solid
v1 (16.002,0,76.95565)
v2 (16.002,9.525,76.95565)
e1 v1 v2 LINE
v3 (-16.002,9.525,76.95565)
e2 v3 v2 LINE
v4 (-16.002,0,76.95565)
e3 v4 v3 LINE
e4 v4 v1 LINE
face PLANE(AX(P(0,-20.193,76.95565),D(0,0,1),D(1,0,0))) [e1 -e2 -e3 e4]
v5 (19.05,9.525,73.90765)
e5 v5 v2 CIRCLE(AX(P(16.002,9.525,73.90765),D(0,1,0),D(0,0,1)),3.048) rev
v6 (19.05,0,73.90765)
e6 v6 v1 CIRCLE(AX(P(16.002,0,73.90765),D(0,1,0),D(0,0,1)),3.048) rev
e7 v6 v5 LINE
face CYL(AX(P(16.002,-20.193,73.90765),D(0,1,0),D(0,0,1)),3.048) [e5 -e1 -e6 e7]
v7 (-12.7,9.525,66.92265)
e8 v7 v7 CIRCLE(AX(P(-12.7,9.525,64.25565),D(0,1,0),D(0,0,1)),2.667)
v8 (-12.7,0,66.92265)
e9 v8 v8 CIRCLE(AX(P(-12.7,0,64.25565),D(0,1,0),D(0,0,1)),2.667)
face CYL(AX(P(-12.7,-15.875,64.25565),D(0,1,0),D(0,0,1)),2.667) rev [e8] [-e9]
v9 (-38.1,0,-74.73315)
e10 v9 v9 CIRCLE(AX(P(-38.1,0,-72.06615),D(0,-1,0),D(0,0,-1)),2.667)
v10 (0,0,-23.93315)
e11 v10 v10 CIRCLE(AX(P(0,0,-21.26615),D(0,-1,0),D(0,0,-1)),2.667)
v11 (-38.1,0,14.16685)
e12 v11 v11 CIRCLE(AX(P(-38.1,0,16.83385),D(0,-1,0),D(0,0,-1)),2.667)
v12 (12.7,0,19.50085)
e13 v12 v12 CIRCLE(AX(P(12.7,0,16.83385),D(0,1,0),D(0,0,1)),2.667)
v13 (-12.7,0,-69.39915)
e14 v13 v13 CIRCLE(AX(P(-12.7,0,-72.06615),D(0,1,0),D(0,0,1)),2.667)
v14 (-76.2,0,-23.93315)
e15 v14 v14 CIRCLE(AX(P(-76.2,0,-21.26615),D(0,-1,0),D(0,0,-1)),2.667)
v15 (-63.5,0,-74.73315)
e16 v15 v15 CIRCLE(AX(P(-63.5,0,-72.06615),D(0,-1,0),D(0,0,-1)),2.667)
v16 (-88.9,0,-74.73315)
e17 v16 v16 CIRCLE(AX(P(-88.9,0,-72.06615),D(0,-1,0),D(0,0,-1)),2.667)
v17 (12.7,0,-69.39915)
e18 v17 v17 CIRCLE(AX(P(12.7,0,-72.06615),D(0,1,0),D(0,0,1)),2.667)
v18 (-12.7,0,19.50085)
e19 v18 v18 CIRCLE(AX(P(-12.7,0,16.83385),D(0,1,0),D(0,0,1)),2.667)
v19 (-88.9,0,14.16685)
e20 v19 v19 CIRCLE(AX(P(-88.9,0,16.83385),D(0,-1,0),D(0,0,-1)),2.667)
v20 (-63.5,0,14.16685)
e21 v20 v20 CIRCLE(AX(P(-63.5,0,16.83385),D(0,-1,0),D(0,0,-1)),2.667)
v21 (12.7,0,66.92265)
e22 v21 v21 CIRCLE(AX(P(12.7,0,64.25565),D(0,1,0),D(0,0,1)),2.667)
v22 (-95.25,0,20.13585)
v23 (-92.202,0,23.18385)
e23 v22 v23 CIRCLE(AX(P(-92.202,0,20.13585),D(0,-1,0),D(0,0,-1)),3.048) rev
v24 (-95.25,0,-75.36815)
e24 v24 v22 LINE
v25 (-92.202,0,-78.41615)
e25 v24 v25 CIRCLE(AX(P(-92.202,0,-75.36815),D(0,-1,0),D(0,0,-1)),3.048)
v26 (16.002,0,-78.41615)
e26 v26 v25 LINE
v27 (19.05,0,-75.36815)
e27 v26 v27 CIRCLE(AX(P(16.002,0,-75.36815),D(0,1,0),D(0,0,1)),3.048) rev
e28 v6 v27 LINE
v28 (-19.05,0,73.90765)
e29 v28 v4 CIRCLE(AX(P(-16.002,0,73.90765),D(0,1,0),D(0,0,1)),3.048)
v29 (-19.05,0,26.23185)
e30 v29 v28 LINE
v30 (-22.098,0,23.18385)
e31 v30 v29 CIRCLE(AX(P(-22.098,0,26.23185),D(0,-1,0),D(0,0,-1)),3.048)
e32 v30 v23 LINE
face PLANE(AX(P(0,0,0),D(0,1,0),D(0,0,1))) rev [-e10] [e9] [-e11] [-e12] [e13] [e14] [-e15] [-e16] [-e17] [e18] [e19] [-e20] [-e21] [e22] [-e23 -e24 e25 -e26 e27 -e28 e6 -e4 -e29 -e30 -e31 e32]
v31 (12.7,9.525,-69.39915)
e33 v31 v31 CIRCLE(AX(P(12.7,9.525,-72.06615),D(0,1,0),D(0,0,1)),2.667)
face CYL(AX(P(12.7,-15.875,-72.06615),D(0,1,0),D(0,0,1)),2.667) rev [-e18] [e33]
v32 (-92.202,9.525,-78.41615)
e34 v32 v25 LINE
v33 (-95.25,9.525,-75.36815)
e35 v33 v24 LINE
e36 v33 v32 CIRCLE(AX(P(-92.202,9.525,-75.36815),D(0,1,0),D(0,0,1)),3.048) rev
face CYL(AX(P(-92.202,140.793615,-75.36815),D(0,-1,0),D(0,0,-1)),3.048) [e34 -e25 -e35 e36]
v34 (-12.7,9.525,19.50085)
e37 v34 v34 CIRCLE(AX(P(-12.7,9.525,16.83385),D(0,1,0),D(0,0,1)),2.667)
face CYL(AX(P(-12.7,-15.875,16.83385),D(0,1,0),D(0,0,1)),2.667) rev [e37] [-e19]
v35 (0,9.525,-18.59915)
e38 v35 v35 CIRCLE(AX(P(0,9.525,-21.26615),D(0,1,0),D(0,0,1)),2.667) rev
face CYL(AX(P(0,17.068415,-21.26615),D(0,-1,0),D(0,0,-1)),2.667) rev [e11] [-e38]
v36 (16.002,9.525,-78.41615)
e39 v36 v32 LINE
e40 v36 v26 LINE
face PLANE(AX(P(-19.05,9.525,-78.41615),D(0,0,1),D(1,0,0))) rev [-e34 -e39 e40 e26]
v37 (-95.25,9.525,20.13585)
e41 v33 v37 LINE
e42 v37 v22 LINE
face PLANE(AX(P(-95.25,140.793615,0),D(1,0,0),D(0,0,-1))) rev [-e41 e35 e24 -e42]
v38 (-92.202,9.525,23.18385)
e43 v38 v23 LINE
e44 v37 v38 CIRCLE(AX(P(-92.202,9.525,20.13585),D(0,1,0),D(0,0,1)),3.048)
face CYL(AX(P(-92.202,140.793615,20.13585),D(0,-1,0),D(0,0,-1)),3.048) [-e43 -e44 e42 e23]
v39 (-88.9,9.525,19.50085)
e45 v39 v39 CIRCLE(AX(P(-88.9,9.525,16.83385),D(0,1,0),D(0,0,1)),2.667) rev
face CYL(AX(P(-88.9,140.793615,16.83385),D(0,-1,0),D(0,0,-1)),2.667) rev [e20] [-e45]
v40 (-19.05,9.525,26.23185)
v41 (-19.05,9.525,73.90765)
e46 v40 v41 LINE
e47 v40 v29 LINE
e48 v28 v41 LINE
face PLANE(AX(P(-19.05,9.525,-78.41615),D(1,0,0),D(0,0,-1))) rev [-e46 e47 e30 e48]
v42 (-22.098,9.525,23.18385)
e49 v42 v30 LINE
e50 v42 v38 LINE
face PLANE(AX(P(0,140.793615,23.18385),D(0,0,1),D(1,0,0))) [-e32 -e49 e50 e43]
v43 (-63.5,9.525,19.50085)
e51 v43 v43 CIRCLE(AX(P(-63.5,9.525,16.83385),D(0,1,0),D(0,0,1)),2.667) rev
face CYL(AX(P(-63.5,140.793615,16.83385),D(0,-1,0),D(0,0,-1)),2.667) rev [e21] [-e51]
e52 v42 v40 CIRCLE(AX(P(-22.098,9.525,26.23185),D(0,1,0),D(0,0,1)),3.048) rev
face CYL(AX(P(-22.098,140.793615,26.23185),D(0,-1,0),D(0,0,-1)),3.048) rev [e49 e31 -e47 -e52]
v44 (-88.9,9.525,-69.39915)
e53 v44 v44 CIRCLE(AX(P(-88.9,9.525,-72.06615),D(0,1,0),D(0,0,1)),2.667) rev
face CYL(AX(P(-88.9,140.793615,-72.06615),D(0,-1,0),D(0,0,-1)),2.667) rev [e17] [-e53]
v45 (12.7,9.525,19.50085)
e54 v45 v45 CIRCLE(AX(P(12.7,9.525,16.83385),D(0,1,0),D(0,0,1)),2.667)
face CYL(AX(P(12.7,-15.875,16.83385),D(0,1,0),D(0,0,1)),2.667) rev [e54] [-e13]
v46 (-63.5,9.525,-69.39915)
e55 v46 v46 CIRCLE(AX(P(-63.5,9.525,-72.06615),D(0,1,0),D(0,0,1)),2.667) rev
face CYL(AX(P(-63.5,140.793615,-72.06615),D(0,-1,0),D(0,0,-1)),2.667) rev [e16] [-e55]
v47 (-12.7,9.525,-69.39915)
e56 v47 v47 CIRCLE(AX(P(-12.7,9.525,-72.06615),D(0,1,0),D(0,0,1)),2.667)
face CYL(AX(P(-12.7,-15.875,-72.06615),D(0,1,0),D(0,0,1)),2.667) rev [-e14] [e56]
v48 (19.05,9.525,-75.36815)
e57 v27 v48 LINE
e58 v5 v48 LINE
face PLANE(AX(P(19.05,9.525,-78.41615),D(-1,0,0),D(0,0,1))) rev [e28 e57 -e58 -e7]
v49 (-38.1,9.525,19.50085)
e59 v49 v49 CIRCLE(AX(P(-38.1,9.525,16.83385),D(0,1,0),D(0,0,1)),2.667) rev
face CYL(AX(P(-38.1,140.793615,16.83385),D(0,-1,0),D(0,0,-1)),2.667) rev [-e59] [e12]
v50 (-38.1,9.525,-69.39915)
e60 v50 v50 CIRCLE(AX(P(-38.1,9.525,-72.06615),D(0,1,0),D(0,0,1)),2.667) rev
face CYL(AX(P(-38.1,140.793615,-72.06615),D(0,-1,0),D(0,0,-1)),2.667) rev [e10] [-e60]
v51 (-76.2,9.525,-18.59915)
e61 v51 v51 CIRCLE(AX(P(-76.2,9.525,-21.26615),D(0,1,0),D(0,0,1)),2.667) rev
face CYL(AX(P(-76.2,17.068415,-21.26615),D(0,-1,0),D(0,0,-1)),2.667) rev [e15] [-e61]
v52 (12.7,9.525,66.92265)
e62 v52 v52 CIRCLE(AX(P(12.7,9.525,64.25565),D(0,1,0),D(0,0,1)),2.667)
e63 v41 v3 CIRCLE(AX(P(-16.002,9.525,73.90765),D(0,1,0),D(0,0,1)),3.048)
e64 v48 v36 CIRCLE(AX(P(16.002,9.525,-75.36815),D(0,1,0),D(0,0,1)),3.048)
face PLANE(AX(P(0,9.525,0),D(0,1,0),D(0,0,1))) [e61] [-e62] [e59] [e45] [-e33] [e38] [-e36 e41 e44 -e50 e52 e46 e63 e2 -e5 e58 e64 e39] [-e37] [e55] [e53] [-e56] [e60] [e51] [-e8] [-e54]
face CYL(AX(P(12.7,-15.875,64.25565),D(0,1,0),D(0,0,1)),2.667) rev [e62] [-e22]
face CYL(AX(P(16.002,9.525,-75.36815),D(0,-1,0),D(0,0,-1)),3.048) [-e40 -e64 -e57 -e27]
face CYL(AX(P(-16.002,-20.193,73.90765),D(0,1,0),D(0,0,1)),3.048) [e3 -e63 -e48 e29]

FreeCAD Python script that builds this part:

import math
import FreeCAD as App
import Part
import Sketcher
from FreeCAD import Vector
Q = App.Units.Quantity


def edges_at(feature, points):
    """Names of the edges that pass closest to the given points."""
    edges = feature.Shape.Edges
    near = lambda p: min(range(len(edges)), key=lambda i: edges[i].distToShape(Part.Vertex(*p))[0])
    return sorted({f"Edge{near(p) + 1}" for p in points})


def add_polygon(sketch, points):
    """Adds a closed chain of lines whose ends are joined by coincident constraints."""
    first, n = sketch.GeometryCount, len(points)
    for a, b in zip(points, points[1:] + points[:1]):
        sketch.addGeometry(Part.LineSegment(App.Vector(*a, 0), App.Vector(*b, 0)), False)
    for i in range(n):
        sketch.addConstraint(Sketcher.Constraint("Coincident", first + i, 2, first + (i + 1) % n, 1))

doc = App.newDocument("Part")
body = doc.addObject("PartDesign::Body", "Body")

# Sketch on XZ plane
sketch1 = doc.addObject("Sketcher::SketchObject", "Sketch")
body.addObject(sketch1)
sketch1.AttachmentSupport = (doc.XZ_Plane, [""])
sketch1.MapMode = "FlatFace"
add_polygon(sketch1, [(-19, -78), (-19, 78), (19, 78), (19, -78)])  # lines 0-3
sketch1.addConstraint([
    Sketcher.Constraint("Vertical", 0),
    Sketcher.Constraint("Horizontal", 1),
    Sketcher.Constraint("Vertical", 2),
    Sketcher.Constraint("Horizontal", 3),
    Sketcher.Constraint("Symmetric", 0, 2, 2, 2, -1, 1),
    Sketcher.Constraint("DistanceX", 1, 1, 1, 2, Q("1.5 in")),
    Sketcher.Constraint("DistanceY", 0, 1, 0, 2, Q("6.1745 in")),
])
pad1 = doc.addObject("PartDesign::Pad", "Pad")
body.addObject(pad1)
pad1.Profile = sketch1
pad1.Length = Q("0.375 in")
pad1.Reversed = True
doc.recompute()

fillet = doc.addObject("PartDesign::Fillet", "Fillet")
body.addObject(fillet)
fillet.Base = (pad1, edges_at(pad1, [(19.05, 4.763, 78.416), (-19.05, 4.763, 78.416)]))
fillet.Radius = Q("0.12 in")
doc.recompute()

fillet2 = doc.addObject("PartDesign::Fillet", "Fillet001")
body.addObject(fillet2)
fillet2.Base = (fillet, edges_at(fillet, [(-19.05, 4.763, -78.416)]))
fillet2.Radius = Q("0.12 in")
doc.recompute()

fillet3 = doc.addObject("PartDesign::Fillet", "Fillet002")
body.addObject(fillet3)
fillet3.Base = (fillet2, edges_at(fillet2, [(19.05, 4.763, -78.416)]))
fillet3.Radius = Q("0.12 in")

# Sketch on XZ plane
sketch2 = doc.addObject("Sketcher::SketchObject", "Sketch001")
body.addObject(sketch2)
sketch2.AttachmentSupport = (doc.XZ_Plane, [""])
sketch2.MapMode = "FlatFace"
sketch2.AttachmentOffset = App.Placement(Vector(0, 0, -0.375 * 25.4), App.Rotation())
sketch2.addGeometry([
    Part.Circle(Vector(12.7, -72.1, 0), Vector(0, 0, 1), 2.7),  # 0
    Part.Circle(Vector(12.7, 16.8, 0), Vector(0, 0, 1), 2.7),  # 1
    Part.Circle(Vector(-12.7, 16.8, 0), Vector(0, 0, 1), 2.7),  # 2
    Part.Circle(Vector(-12.7, -72.1, 0), Vector(0, 0, 1), 2.7),  # 3
    Part.Circle(Vector(-12.7, 64.3, 0), Vector(0, 0, 1), 2.7),  # 4
    Part.Circle(Vector(12.7, 64.3, 0), Vector(0, 0, 1), 2.7),  # 5
], False)
sketch2.addConstraint([
    Sketcher.Constraint("Equal", 0, 1),
    Sketcher.Constraint("Equal", 1, 2),
    Sketcher.Constraint("Equal", 2, 3),
    Sketcher.Constraint("Equal", 3, 4),
    Sketcher.Constraint("Equal", 4, 5),
    Sketcher.Constraint("Symmetric", 1, 3, 2, 3, -2),
    Sketcher.Constraint("Symmetric", 0, 3, 3, 3, -2),
    Sketcher.Constraint("Symmetric", 4, 3, 5, 3, -2),
    Sketcher.Constraint("Vertical", 0, 3, 1, 3),
    Sketcher.Constraint("Vertical", 3, 3, 4, 3),
    Sketcher.Constraint("Diameter", 0, Q("0.21 in")),
    Sketcher.Constraint("DistanceX", 2, 3, 1, 3, Q("1 in")),
    Sketcher.Constraint("DistanceY", 0, 3, 1, 3, Q("3.5 in")),
    Sketcher.Constraint("DistanceY", 2, 3, 4, 3, Q("1.867 in")),
    Sketcher.Constraint("DistanceY", 0, 3, -1, 1, Q("72.06615 mm")),
])
pocket1 = doc.addObject("PartDesign::Pocket", "Pocket")
body.addObject(pocket1)
pocket1.Profile = sketch2
pocket1.Length = Q("1 in")
pocket1.Reversed = True

# Sketch on XZ plane
sketch3 = doc.addObject("Sketcher::SketchObject", "Sketch002")
body.addObject(sketch3)
sketch3.AttachmentSupport = (doc.XZ_Plane, [""])
sketch3.MapMode = "FlatFace"
sketch3.AttachmentOffset = App.Placement(Vector(0, 0, -0.375 * 25.4), App.Rotation())
sketch3.addGeometry([
    Part.ArcOfCircle(Part.Circle(Vector(-16, 73.9, 0), Vector(0, 0, 1), 3), math.radians(90), math.radians(180)),  # 0
    Part.LineSegment(Vector(-19.1, 73.9, 0), Vector(-19.1, 75.4, 0)),  # 1
    Part.ArcOfCircle(Part.Circle(Vector(-16, 75.4, 0), Vector(0, 0, 1), 3), math.radians(149), math.radians(180)),  # 2
    Part.ArcOfCircle(Part.Circle(Vector(-16, 75.4, 0), Vector(0, 0, 1), 3), math.radians(90), math.radians(149)),  # 3
    Part.LineSegment(Vector(-16, 78.4, 0), Vector(16, 78.4, 0)),  # 4
    Part.ArcOfCircle(Part.Circle(Vector(16, 75.4, 0), Vector(0, 0, 1), 3), math.radians(31), math.radians(90)),  # 5
    Part.ArcOfCircle(Part.Circle(Vector(16, 75.4, 0), Vector(0, 0, 1), 3), math.radians(0), math.radians(31)),  # 6
    Part.LineSegment(Vector(19.1, 75.4, 0), Vector(19.1, 73.9, 0)),  # 7
    Part.ArcOfCircle(Part.Circle(Vector(16, 73.9, 0), Vector(0, 0, 1), 3), math.radians(0), math.radians(90)),  # 8
    Part.LineSegment(Vector(16, 77, 0), Vector(-16, 77, 0)),  # 9
], False)
sketch3.addConstraint([
    Sketcher.Constraint("Tangent", 0, 2, 1, 1),
    Sketcher.Constraint("Tangent", 1, 2, 2, 2),
    Sketcher.Constraint("Tangent", 2, 1, 3, 2),
    Sketcher.Constraint("Tangent", 3, 1, 4, 1),
    Sketcher.Constraint("Tangent", 4, 2, 5, 2),
    Sketcher.Constraint("Tangent", 5, 1, 6, 2),
    Sketcher.Constraint("Tangent", 6, 1, 7, 1),
    Sketcher.Constraint("Tangent", 7, 2, 8, 1),
    Sketcher.Constraint("Tangent", 8, 2, 9, 1),
    Sketcher.Constraint("Tangent", 9, 2, 0, 1),
    Sketcher.Constraint("Vertical", 1),
    Sketcher.Constraint("Horizontal", 4),
    Sketcher.Constraint("Vertical", 7),
    Sketcher.Constraint("Horizontal", 9),
    Sketcher.Constraint("Equal", 0, 2),
    Sketcher.Constraint("Equal", 2, 3),
    Sketcher.Constraint("Equal", 3, 5),
    Sketcher.Constraint("Equal", 5, 6),
    Sketcher.Constraint("Equal", 6, 8),
    Sketcher.Constraint("Symmetric", 2, 1, 5, 1, -2),
    Sketcher.Constraint("Horizontal", 5, 1, 8, 2),
    Sketcher.Constraint("Radius", 0, Q("0.12 in")),
    Sketcher.Constraint("DistanceX", 4, 1, 4, 2, Q("1.26 in")),
    Sketcher.Constraint("DistanceY", 1, 1, 1, 2, Q("0.0575 in")),
    Sketcher.Constraint("DistanceY", -1, 1, 0, 3, Q("73.90765 mm")),
])
pocket2 = doc.addObject("PartDesign::Pocket", "Pocket001")
body.addObject(pocket2)
pocket2.Profile = sketch3
pocket2.Length = Q("1.17 in")
pocket2.Reversed = True

# Sketch on XZ plane
sketch4 = doc.addObject("Sketcher::SketchObject", "Sketch003")
body.addObject(sketch4)
sketch4.AttachmentSupport = (doc.XZ_Plane, [""])
sketch4.MapMode = "FlatFace"
sketch4.addGeometry([
    Part.LineSegment(Vector(-92.2, -78.4, 0), Vector(-16, -78.4, 0)),  # 0
    Part.ArcOfCircle(Part.Circle(Vector(-16, -75.4, 0), Vector(0, 0, 1), 3), math.radians(180), math.radians(270)),  # 1
    Part.LineSegment(Vector(-19.1, -75.4, 0), Vector(-19.1, 26.2, 0)),  # 2
    Part.ArcOfCircle(Part.Circle(Vector(-22.1, 26.2, 0), Vector(0, 0, 1), 3), math.radians(-90), math.radians(0)),  # 3
    Part.LineSegment(Vector(-22.1, 23.2, 0), Vector(-92.2, 23.2, 0)),  # 4
    Part.ArcOfCircle(Part.Circle(Vector(-92.2, 20.1, 0), Vector(0, 0, 1), 3), math.radians(90), math.radians(180)),  # 5
    Part.LineSegment(Vector(-95.2, 20.1, 0), Vector(-95.2, -75.4, 0)),  # 6
    Part.ArcOfCircle(Part.Circle(Vector(-92.2, -75.4, 0), Vector(0, 0, 1), 3), math.radians(180), math.radians(270)),  # 7
    Part.Circle(Vector(-88.9, -72.1, 0), Vector(0, 0, 1), 2.7),  # 8
    Part.Circle(Vector(-63.5, -72.1, 0), Vector(0, 0, 1), 2.7),  # 9
    Part.Circle(Vector(-38.1, -72.1, 0), Vector(0, 0, 1), 2.7),  # 10
    Part.Circle(Vector(-88.9, 16.8, 0), Vector(0, 0, 1), 2.7),  # 11
    Part.Circle(Vector(-63.5, 16.8, 0), Vector(0, 0, 1), 2.7),  # 12
    Part.Circle(Vector(-38.1, 16.8, 0), Vector(0, 0, 1), 2.7),  # 13
], False)
sketch4.addConstraint([
    Sketcher.Constraint("Tangent", 0, 2, 1, 2),
    Sketcher.Constraint("Tangent", 1, 1, 2, 1),
    Sketcher.Constraint("Tangent", 2, 2, 3, 2),
    Sketcher.Constraint("Tangent", 3, 1, 4, 1),
    Sketcher.Constraint("Tangent", 4, 2, 5, 1),
    Sketcher.Constraint("Tangent", 5, 2, 6, 1),
    Sketcher.Constraint("Tangent", 6, 2, 7, 1),
    Sketcher.Constraint("Tangent", 7, 2, 0, 1),
    Sketcher.Constraint("Horizontal", 0),
    Sketcher.Constraint("Vertical", 2),
    Sketcher.Constraint("Horizontal", 4),
    Sketcher.Constraint("Vertical", 6),
    Sketcher.Constraint("Equal", 1, 3),
    Sketcher.Constraint("Equal", 3, 5),
    Sketcher.Constraint("Equal", 5, 7),
    Sketcher.Constraint("Equal", 8, 9),
    Sketcher.Constraint("Equal", 9, 10),
    Sketcher.Constraint("Equal", 10, 11),
    Sketcher.Constraint("Equal", 11, 12),
    Sketcher.Constraint("Equal", 12, 13),
    Sketcher.Constraint("Horizontal", 8, 3, 9, 3),
    Sketcher.Constraint("Horizontal", 9, 3, 10, 3),
    Sketcher.Constraint("Horizontal", 11, 3, 12, 3),
    Sketcher.Constraint("Horizontal", 12, 3, 13, 3),
    Sketcher.Constraint("Vertical", 8, 3, 11, 3),
    Sketcher.Constraint("Vertical", 9, 3, 12, 3),
    Sketcher.Constraint("Vertical", 10, 3, 13, 3),
    Sketcher.Constraint("Diameter", 8, Q("0.21 in")),
    Sketcher.Constraint("DistanceX", 0, 1, 0, 2, Q("3 in")),
    Sketcher.Constraint("DistanceY", 2, 1, 2, 2, Q("4 in")),
    Sketcher.Constraint("Radius", 1, Q("0.12 in")),
    Sketcher.Constraint("DistanceX", 8, 3, 9, 3, Q("1 in")),
    Sketcher.Constraint("DistanceX", 9, 3, 10, 3, Q("1 in")),
    Sketcher.Constraint("DistanceX", 8, 3, -1, 1, Q("3.5 in")),
    Sketcher.Constraint("DistanceY", 8, 3, 11, 3, Q("3.5 in")),
    Sketcher.Constraint("DistanceX", 1, 3, -1, 1, Q("0.63 in")),
    Sketcher.Constraint("DistanceY", 7, 3, 8, 3, Q("0.13 in")),
    Sketcher.Constraint("DistanceY", 1, 3, -1, 1, Q("75.36815 mm")),
])
pad2 = doc.addObject("PartDesign::Pad", "Pad001")
body.addObject(pad2)
pad2.Profile = sketch4
pad2.Length = Q("0.375 in")
pad2.Reversed = True

# Sketch on XZ plane
sketch5 = doc.addObject("Sketcher::SketchObject", "Sketch004")
body.addObject(sketch5)
sketch5.AttachmentSupport = (doc.XZ_Plane, [""])
sketch5.MapMode = "FlatFace"
sketch5.addGeometry([
    Part.Circle(Vector(0, -21.3, 0), Vector(0, 0, 1), 2.7),
    Part.Circle(Vector(-76.2, -21.3, 0), Vector(0, 0, 1), 2.7),
], False)
sketch5.addConstraint([
    Sketcher.Constraint("Equal", 0, 1),
    Sketcher.Constraint("PointOnObject", 0, 3, -2),
    Sketcher.Constraint("Horizontal", 0, 3, 1, 3),
    Sketcher.Constraint("Diameter", 0, Q("0.21 in")),
    Sketcher.Constraint("DistanceX", 1, 3, -1, 1, Q("3 in")),
    Sketcher.Constraint("DistanceY", 0, 3, -1, 1, Q("21.26615 mm")),
])
pocket3 = doc.addObject("PartDesign::Pocket", "Pocket002")
body.addObject(pocket3)
pocket3.Profile = sketch5
pocket3.Length = Q("0.375 in")

doc.recompute()
